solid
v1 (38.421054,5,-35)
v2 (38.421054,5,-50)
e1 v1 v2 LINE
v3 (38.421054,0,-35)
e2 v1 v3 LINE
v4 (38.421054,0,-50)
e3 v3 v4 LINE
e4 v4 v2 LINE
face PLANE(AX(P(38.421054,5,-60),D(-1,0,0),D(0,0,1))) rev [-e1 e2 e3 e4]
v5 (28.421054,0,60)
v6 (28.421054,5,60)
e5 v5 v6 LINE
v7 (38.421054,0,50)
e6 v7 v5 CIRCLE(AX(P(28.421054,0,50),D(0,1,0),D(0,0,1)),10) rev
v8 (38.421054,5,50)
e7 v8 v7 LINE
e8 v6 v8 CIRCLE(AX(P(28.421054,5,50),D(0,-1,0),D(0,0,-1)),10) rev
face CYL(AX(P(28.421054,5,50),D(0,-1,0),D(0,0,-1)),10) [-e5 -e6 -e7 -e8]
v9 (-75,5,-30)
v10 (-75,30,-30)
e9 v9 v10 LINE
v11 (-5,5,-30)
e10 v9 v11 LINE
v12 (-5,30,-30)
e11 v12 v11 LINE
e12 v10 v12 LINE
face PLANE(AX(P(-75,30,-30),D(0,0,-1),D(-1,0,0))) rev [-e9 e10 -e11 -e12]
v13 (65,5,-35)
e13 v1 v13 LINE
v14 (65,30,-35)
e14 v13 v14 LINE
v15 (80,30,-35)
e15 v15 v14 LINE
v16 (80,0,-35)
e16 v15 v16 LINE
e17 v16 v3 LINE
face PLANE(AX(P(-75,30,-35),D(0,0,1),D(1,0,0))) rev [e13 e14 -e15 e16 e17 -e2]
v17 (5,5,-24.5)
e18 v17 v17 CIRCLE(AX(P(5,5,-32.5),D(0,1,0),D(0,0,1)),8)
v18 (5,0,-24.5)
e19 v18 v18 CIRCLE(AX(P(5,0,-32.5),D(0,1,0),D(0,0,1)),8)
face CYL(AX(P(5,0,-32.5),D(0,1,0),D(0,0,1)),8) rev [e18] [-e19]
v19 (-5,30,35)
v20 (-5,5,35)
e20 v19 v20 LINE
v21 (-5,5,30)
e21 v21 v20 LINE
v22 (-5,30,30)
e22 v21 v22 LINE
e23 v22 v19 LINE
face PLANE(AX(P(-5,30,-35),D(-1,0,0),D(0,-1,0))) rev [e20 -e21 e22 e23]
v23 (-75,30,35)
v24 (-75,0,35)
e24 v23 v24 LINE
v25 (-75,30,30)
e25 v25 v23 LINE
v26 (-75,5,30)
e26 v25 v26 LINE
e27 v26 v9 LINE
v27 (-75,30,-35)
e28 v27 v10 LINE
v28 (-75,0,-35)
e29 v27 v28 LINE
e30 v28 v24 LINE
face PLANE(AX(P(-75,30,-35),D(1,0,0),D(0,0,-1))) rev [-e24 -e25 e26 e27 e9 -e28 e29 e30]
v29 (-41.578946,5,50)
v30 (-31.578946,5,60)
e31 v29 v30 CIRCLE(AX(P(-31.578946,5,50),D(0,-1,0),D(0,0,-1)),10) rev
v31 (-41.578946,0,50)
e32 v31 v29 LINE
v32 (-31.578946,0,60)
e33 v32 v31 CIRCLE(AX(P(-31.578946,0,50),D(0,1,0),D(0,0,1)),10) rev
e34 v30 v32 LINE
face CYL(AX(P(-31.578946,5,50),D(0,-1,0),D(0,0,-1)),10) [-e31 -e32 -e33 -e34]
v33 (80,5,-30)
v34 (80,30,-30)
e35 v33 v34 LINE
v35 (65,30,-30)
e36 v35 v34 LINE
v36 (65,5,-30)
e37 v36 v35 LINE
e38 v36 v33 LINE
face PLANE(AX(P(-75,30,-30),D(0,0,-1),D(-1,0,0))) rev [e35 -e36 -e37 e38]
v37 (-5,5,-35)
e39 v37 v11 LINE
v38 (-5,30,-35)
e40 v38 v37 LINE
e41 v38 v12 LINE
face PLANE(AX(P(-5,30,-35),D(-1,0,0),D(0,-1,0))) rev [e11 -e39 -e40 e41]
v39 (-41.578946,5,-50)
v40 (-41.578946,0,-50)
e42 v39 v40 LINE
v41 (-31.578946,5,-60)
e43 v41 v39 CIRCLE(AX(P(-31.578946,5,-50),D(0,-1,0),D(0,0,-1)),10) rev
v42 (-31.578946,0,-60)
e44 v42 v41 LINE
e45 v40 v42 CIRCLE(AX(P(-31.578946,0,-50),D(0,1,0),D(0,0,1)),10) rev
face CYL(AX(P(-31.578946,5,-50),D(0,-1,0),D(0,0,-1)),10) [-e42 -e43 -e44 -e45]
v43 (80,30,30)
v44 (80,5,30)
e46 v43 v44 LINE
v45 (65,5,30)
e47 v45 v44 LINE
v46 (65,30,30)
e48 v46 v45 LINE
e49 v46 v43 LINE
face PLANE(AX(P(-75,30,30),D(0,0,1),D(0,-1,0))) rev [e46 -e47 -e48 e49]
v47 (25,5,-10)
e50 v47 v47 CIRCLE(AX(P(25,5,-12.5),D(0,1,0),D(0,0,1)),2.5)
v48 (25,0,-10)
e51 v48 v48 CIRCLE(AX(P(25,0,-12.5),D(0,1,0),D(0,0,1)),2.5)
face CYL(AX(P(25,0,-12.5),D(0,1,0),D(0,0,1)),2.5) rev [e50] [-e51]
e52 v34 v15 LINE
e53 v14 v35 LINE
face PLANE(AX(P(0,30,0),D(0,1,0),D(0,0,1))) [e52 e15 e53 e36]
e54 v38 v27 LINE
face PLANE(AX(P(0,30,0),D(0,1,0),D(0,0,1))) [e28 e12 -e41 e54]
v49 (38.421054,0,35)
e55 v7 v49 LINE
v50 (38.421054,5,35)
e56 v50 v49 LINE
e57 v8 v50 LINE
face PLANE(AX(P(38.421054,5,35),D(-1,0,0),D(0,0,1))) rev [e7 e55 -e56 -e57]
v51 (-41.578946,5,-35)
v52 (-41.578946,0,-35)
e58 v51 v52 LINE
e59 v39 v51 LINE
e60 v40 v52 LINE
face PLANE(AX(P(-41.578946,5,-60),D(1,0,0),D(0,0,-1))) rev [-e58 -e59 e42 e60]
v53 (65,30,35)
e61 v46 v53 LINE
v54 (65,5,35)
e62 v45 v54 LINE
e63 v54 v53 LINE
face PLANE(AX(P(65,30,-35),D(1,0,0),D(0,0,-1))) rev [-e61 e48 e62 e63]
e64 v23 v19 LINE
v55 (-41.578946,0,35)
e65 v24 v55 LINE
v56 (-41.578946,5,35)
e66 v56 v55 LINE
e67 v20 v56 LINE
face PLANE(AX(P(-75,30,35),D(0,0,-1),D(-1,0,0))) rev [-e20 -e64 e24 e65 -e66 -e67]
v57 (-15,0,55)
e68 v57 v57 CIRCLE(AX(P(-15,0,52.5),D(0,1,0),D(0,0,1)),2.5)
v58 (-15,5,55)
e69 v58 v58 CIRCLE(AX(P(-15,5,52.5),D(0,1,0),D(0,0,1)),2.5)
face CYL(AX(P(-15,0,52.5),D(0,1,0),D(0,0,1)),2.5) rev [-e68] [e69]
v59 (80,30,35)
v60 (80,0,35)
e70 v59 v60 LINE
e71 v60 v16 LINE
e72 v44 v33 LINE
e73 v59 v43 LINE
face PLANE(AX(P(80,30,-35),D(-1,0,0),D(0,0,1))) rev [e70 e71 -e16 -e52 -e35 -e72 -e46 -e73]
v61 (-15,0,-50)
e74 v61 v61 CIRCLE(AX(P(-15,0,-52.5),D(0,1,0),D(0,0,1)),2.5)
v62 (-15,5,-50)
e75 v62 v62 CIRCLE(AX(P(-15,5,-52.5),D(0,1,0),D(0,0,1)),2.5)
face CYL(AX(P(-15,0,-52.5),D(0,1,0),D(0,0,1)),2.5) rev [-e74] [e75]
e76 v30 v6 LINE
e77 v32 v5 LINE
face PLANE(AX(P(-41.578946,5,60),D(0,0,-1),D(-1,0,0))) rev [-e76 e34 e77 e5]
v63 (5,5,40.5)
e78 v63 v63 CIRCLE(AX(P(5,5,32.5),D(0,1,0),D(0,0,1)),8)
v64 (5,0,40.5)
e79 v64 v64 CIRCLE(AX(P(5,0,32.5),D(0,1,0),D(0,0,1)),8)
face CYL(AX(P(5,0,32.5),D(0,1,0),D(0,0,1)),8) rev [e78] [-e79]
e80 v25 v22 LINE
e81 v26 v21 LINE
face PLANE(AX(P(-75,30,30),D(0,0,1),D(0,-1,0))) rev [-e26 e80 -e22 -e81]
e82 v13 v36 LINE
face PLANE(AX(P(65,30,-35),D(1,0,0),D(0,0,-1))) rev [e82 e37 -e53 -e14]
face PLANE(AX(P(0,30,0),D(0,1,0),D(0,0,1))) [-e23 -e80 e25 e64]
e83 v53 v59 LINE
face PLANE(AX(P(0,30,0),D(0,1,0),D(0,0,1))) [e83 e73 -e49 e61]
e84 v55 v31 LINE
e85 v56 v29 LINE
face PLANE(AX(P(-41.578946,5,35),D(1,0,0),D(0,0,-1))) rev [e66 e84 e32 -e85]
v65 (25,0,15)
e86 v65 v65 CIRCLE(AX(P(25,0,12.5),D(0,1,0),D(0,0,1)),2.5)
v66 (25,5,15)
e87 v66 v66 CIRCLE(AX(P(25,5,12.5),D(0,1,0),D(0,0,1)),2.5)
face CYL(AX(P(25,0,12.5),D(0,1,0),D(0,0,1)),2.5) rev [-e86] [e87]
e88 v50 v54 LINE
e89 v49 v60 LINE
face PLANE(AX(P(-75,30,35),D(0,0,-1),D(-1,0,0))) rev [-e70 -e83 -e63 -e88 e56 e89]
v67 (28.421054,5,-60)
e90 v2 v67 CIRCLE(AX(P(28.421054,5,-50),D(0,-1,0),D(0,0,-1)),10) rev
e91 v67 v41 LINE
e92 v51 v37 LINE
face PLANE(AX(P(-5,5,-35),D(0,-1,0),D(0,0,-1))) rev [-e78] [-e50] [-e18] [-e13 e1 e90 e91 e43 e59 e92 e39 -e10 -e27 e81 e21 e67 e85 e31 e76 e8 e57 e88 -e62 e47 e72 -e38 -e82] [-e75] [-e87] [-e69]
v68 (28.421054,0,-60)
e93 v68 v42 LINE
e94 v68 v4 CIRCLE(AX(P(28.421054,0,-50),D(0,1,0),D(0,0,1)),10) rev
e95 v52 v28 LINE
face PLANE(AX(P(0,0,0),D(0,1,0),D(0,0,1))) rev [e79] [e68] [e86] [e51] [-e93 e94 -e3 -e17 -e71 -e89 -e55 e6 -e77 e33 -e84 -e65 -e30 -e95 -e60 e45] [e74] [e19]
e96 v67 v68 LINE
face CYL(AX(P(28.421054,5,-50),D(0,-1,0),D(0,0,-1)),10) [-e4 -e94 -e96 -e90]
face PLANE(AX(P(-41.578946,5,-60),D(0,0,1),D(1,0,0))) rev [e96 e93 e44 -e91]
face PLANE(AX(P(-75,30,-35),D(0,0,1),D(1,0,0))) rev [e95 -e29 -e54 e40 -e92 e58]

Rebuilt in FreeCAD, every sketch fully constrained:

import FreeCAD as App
import Part
import Sketcher
from FreeCAD import Vector
Q = App.Units.Quantity


def edges_at(feature, points):
    """Names of the edges that pass closest to the given points."""
    edges = feature.Shape.Edges
    near = lambda p: min(range(len(edges)), key=lambda i: edges[i].distToShape(Part.Vertex(*p))[0])
    return sorted({f"Edge{near(p) + 1}" for p in points})


def add_polygon(sketch, points):
    """Adds a closed chain of lines whose ends are joined by coincident constraints."""
    first, n = sketch.GeometryCount, len(points)
    for a, b in zip(points, points[1:] + points[:1]):
        sketch.addGeometry(Part.LineSegment(App.Vector(*a, 0), App.Vector(*b, 0)), False)
    for i in range(n):
        sketch.addConstraint(Sketcher.Constraint("Coincident", first + i, 2, first + (i + 1) % n, 1))

doc = App.newDocument("Part")
body = doc.addObject("PartDesign::Body", "Body")

sketch1 = body.newObject("Sketcher::SketchObject", "Sketch")
sketch1.AttachmentSupport = (doc.getObject("XZ_Plane"), [""])
sketch1.MapMode = "FlatFace"
add_polygon(sketch1, [(-75, -35), (-75, 35), (80, 35), (80, -35)])
sketch1.addConstraint(Sketcher.Constraint("Vertical", 0))
sketch1.addConstraint(Sketcher.Constraint("Horizontal", 1))
sketch1.addConstraint(Sketcher.Constraint("Vertical", 2))
sketch1.addConstraint(Sketcher.Constraint("Horizontal", 3))
sketch1.addConstraint(Sketcher.Constraint("DistanceX", 1, 1, 1, 2, Q("155 mm")))
sketch1.addConstraint(Sketcher.Constraint("DistanceY", 0, 1, 0, 2, Q("70 mm")))
sketch1.addConstraint(Sketcher.Constraint("DistanceX", 0, 2, -1, 1, Q("75 mm")))
sketch1.addConstraint(Sketcher.Constraint("DistanceY", -1, 1, 0, 2, Q("35 mm")))
pad1 = body.newObject("PartDesign::Pad", "Pad")
pad1.Profile = sketch1
pad1.Length = 30
pad1.Reversed = True

sketch2 = body.newObject("Sketcher::SketchObject", "Sketch001")
sketch2.AttachmentSupport = (doc.getObject("XY_Plane"), [""])
sketch2.MapMode = "FlatFace"
sketch2.AttachmentOffset = App.Placement(Vector(0, 0, 35), App.Rotation())
add_polygon(sketch2, [(-5, 30), (-5, 5), (65, 5), (65, 30)])
sketch2.addConstraint(Sketcher.Constraint("Vertical", 0))
sketch2.addConstraint(Sketcher.Constraint("Horizontal", 1))
sketch2.addConstraint(Sketcher.Constraint("Vertical", 2))
sketch2.addConstraint(Sketcher.Constraint("Horizontal", 3))
sketch2.addConstraint(Sketcher.Constraint("DistanceX", 1, 1, 1, 2, Q("70 mm")))
sketch2.addConstraint(Sketcher.Constraint("DistanceY", 0, 2, 0, 1, Q("25 mm")))
sketch2.addConstraint(Sketcher.Constraint("DistanceX", 0, 2, -1, 1, Q("5 mm")))
sketch2.addConstraint(Sketcher.Constraint("DistanceY", -1, 1, 0, 2, Q("5 mm")))
pocket1 = body.newObject("PartDesign::Pocket", "Pocket")
pocket1.Profile = sketch2
pocket1.Type = "ThroughAll"

sketch3 = body.newObject("Sketcher::SketchObject", "Sketch002")
sketch3.AttachmentSupport = (doc.getObject("YZ_Plane"), [""])
sketch3.MapMode = "FlatFace"
sketch3.AttachmentOffset = App.Placement(Vector(0, 0, 80), App.Rotation())
add_polygon(sketch3, [(30, 30), (5, 30), (5, -30), (30, -30)])
sketch3.addConstraint(Sketcher.Constraint("Horizontal", 0))
sketch3.addConstraint(Sketcher.Constraint("Vertical", 1))
sketch3.addConstraint(Sketcher.Constraint("Horizontal", 2))
sketch3.addConstraint(Sketcher.Constraint("Vertical", 3))
sketch3.addConstraint(Sketcher.Constraint("DistanceX", 0, 2, 0, 1, Q("25 mm")))
sketch3.addConstraint(Sketcher.Constraint("DistanceY", 1, 2, 1, 1, Q("60 mm")))
sketch3.addConstraint(Sketcher.Constraint("DistanceX", -1, 1, 0, 2, Q("5 mm")))
sketch3.addConstraint(Sketcher.Constraint("DistanceY", -1, 1, 0, 2, Q("30 mm")))
pocket2 = body.newObject("PartDesign::Pocket", "Pocket001")
pocket2.Profile = sketch3
pocket2.Type = "ThroughAll"

sketch4 = body.newObject("Sketcher::SketchObject", "Sketch003")
sketch4.AttachmentSupport = (doc.getObject("XZ_Plane"), [""])
sketch4.MapMode = "FlatFace"
add_polygon(sketch4, [(-42, 35), (-42, 60), (38, 60), (38, 35)])
add_polygon(sketch4, [(-42, -60), (-42, -35), (38, -35), (38, -60)])
sketch4.addConstraint(Sketcher.Constraint("Vertical", 0))
sketch4.addConstraint(Sketcher.Constraint("Horizontal", 1))
sketch4.addConstraint(Sketcher.Constraint("Vertical", 2))
sketch4.addConstraint(Sketcher.Constraint("Horizontal", 3))
sketch4.addConstraint(Sketcher.Constraint("Vertical", 4))
sketch4.addConstraint(Sketcher.Constraint("Horizontal", 5))
sketch4.addConstraint(Sketcher.Constraint("Vertical", 6))
sketch4.addConstraint(Sketcher.Constraint("Horizontal", 7))
sketch4.addConstraint(Sketcher.Constraint("Symmetric", 3, 2, 4, 2, -1))
sketch4.addConstraint(Sketcher.Constraint("Symmetric", 1, 2, 6, 2, -1))
sketch4.addConstraint(Sketcher.Constraint("DistanceX", 1, 1, 1, 2, Q("80 mm")))
sketch4.addConstraint(Sketcher.Constraint("DistanceY", 0, 1, 0, 2, Q("25 mm")))
sketch4.addConstraint(Sketcher.Constraint("DistanceY", -1, 1, 0, 2, Q("60 mm")))
sketch4.addConstraint(Sketcher.Constraint("DistanceX", 0, 2, -1, 1, Q("41.578946 mm")))
pad2 = body.newObject("PartDesign::Pad", "Pad001")
pad2.Profile = sketch4
pad2.Length = 5
pad2.Reversed = True

sketch5 = body.newObject("Sketcher::SketchObject", "Sketch004")
sketch5.AttachmentSupport = (doc.getObject("XZ_Plane"), [""])
sketch5.MapMode = "FlatFace"
sketch5.AttachmentOffset = App.Placement(Vector(0, 0, -5), App.Rotation())
sketch5.addGeometry(Part.Circle(Vector(5, -32.5, 0), Vector(0, 0, 1), 8), False)
sketch5.addGeometry(Part.Circle(Vector(5, 32.5, 0), Vector(0, 0, 1), 8), False)
sketch5.addGeometry(Part.Circle(Vector(-15, -52.5, 0), Vector(0, 0, 1), 2.5), False)
sketch5.addGeometry(Part.Circle(Vector(25, -12.5, 0), Vector(0, 0, 1), 2.5), False)
sketch5.addGeometry(Part.Circle(Vector(-15, 52.5, 0), Vector(0, 0, 1), 2.5), False)
sketch5.addGeometry(Part.Circle(Vector(25, 12.5, 0), Vector(0, 0, 1), 2.5), False)
sketch5.addConstraint(Sketcher.Constraint("Equal", 0, 1))
sketch5.addConstraint(Sketcher.Constraint("Equal", 2, 3))
sketch5.addConstraint(Sketcher.Constraint("Equal", 3, 4))
sketch5.addConstraint(Sketcher.Constraint("Equal", 4, 5))
sketch5.addConstraint(Sketcher.Constraint("Symmetric", 0, 3, 1, 3, -1))
sketch5.addConstraint(Sketcher.Constraint("Symmetric", 2, 3, 4, 3, -1))
sketch5.addConstraint(Sketcher.Constraint("Symmetric", 3, 3, 5, 3, -1))
sketch5.addConstraint(Sketcher.Constraint("Diameter", 0, Q("16 mm")))
sketch5.addConstraint(Sketcher.Constraint("Diameter", 2, Q("5 mm")))
sketch5.addConstraint(Sketcher.Constraint("DistanceX", -1, 1, 0, 3, Q("5 mm")))
sketch5.addConstraint(Sketcher.Constraint("DistanceX", 2, 3, -1, 1, Q("15 mm")))
sketch5.addConstraint(Sketcher.Constraint("DistanceX", -1, 1, 3, 3, Q("25 mm")))
sketch5.addConstraint(Sketcher.Constraint("DistanceY", 0, 3, 1, 3, Q("65 mm")))
sketch5.addConstraint(Sketcher.Constraint("DistanceY", 2, 3, 0, 3, Q("20 mm")))
sketch5.addConstraint(Sketcher.Constraint("DistanceY", 0, 3, 3, 3, Q("20 mm")))
pocket3 = body.newObject("PartDesign::Pocket", "Pocket002")
pocket3.Profile = sketch5
pocket3.Type = "ThroughAll"
pocket3.Reversed = True
doc.recompute()

fillet = body.newObject("PartDesign::Fillet", "Fillet")
fillet.Base = (pocket3, edges_at(pocket3, [(38.421, 2.5, 60)]))
fillet.Radius = 10
doc.recompute()

fillet2 = body.newObject("PartDesign::Fillet", "Fillet001")
fillet2.Base = (fillet, edges_at(fillet, [(-41.579, 2.5, -60), (38.421, 2.5, -60), (-41.579, 2.5, 60)]))
fillet2.Radius = 10

doc.recompute()
